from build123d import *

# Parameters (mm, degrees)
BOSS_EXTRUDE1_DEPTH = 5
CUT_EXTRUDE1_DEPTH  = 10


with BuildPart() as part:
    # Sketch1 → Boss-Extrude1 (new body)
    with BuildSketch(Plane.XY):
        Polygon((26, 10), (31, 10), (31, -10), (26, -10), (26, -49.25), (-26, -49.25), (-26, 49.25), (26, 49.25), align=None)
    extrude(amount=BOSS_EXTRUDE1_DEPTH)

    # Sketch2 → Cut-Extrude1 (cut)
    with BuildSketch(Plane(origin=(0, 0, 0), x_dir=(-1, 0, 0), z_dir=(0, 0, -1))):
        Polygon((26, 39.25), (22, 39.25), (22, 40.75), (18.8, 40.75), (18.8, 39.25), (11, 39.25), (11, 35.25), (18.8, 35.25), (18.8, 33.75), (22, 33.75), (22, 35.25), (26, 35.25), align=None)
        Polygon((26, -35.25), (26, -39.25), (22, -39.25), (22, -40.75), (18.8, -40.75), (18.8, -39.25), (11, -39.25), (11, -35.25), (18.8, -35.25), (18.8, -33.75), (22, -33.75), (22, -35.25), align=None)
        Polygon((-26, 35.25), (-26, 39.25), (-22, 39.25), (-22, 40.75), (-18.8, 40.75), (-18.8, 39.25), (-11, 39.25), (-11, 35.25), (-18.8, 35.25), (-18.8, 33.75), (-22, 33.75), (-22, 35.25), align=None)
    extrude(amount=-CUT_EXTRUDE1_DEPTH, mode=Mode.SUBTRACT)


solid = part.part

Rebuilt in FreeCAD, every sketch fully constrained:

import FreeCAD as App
import Part
import Sketcher
from FreeCAD import Vector
Q = App.Units.Quantity


def add_polygon(sketch, points):
    """Adds a closed chain of lines whose ends are joined by coincident constraints."""
    first, n = sketch.GeometryCount, len(points)
    for a, b in zip(points, points[1:] + points[:1]):
        sketch.addGeometry(Part.LineSegment(App.Vector(*a, 0), App.Vector(*b, 0)), False)
    for i in range(n):
        sketch.addConstraint(Sketcher.Constraint("Coincident", first + i, 2, first + (i + 1) % n, 1))

doc = App.newDocument("Part")
body = doc.addObject("PartDesign::Body", "Body")

# Sketch on XY plane
sketch1 = body.newObject("Sketcher::SketchObject", "Sketch")
sketch1.AttachmentSupport = (doc.getObject("XY_Plane"), [""])
sketch1.MapMode = "FlatFace"
add_polygon(sketch1, [(31, 10), (26, 10), (26, 49.25), (-26, 49.25), (-26, -49.25), (26, -49.25), (26, -10), (31, -10)])  # lines 0-7
sketch1.addConstraint([
    Sketcher.Constraint("Horizontal", 0),
    Sketcher.Constraint("Vertical", 1),
    Sketcher.Constraint("Horizontal", 2),
    Sketcher.Constraint("Vertical", 3),
    Sketcher.Constraint("Horizontal", 4),
    Sketcher.Constraint("Vertical", 5),
    Sketcher.Constraint("Horizontal", 6),
    Sketcher.Constraint("Vertical", 7),
    Sketcher.Constraint("Symmetric", 1, 2, 3, 2, -1, 1),
    Sketcher.Constraint("Symmetric", 0, 2, 5, 2, -1),
    Sketcher.Constraint("DistanceX", 0, 2, 0, 1, Q("5 mm")),
    Sketcher.Constraint("DistanceX", 2, 2, 2, 1, Q("52 mm")),
    Sketcher.Constraint("DistanceY", 7, 1, 7, 2, Q("20 mm")),
    Sketcher.Constraint("DistanceY", 3, 2, 3, 1, Q("98.5 mm")),
])
pad1 = body.newObject("PartDesign::Pad", "Pad")
pad1.Profile = sketch1
pad1.Length = 5

# Sketch on XY plane
sketch2 = body.newObject("Sketcher::SketchObject", "Sketch001")
sketch2.AttachmentSupport = (doc.getObject("XY_Plane"), [""])
sketch2.MapMode = "FlatFace"
add_polygon(sketch2, [(-26, 39.25), (-22, 39.25), (-22, 40.75), (-18.8, 40.75), (-18.8, 39.25), (-11, 39.25), (-11, 35.25), (-18.8, 35.25), (-18.8, 33.75), (-22, 33.75), (-22, 35.25), (-26, 35.25)])  # lines 0-11
add_polygon(sketch2, [(-26, -39.25), (-26, -35.25), (-22, -35.25), (-22, -33.75), (-18.8, -33.75), (-18.8, -35.25), (-11, -35.25), (-11, -39.25), (-18.8, -39.25), (-18.8, -40.75), (-22, -40.75), (-22, -39.25)])  # lines 12-23
add_polygon(sketch2, [(26, 39.25), (26, 35.25), (22, 35.25), (22, 33.75), (18.8, 33.75), (18.8, 35.25), (11, 35.25), (11, 39.25), (18.8, 39.25), (18.8, 40.75), (22, 40.75), (22, 39.25)])  # lines 24-35
sketch2.addConstraint([
    Sketcher.Constraint("Horizontal", 0),
    Sketcher.Constraint("Vertical", 1),
    Sketcher.Constraint("Horizontal", 2),
    Sketcher.Constraint("Vertical", 3),
    Sketcher.Constraint("Horizontal", 4),
    Sketcher.Constraint("Vertical", 5),
    Sketcher.Constraint("Horizontal", 6),
    Sketcher.Constraint("Vertical", 7),
    Sketcher.Constraint("Horizontal", 8),
    Sketcher.Constraint("Vertical", 9),
    Sketcher.Constraint("Horizontal", 10),
    Sketcher.Constraint("Vertical", 11),
    Sketcher.Constraint("Vertical", 12),
    Sketcher.Constraint("Horizontal", 13),
    Sketcher.Constraint("Vertical", 14),
    Sketcher.Constraint("Horizontal", 15),
    Sketcher.Constraint("Vertical", 16),
    Sketcher.Constraint("Horizontal", 17),
    Sketcher.Constraint("Vertical", 18),
    Sketcher.Constraint("Horizontal", 19),
    Sketcher.Constraint("Vertical", 20),
    Sketcher.Constraint("Horizontal", 21),
    Sketcher.Constraint("Vertical", 22),
    Sketcher.Constraint("Horizontal", 23),
    Sketcher.Constraint("Vertical", 24),
    Sketcher.Constraint("Horizontal", 25),
    Sketcher.Constraint("Vertical", 26),
    Sketcher.Constraint("Horizontal", 27),
    Sketcher.Constraint("Vertical", 28),
    Sketcher.Constraint("Horizontal", 29),
    Sketcher.Constraint("Vertical", 30),
    Sketcher.Constraint("Horizontal", 31),
    Sketcher.Constraint("Vertical", 32),
    Sketcher.Constraint("Horizontal", 33),
    Sketcher.Constraint("Vertical", 34),
    Sketcher.Constraint("Horizontal", 35),
    Sketcher.Constraint("Symmetric", 12, 2, 24, 2, -1, 1),
    Sketcher.Constraint("Symmetric", 14, 2, 26, 2, -1, 1),
    Sketcher.Constraint("Symmetric", 16, 2, 28, 2, -1, 1),
    Sketcher.Constraint("Symmetric", 18, 2, 30, 2, -1, 1),
    Sketcher.Constraint("Symmetric", 20, 2, 32, 2, -1, 1),
    Sketcher.Constraint("Symmetric", 22, 2, 34, 2, -1, 1),
    Sketcher.Constraint("Symmetric", 10, 2, 24, 2, -2),
    Sketcher.Constraint("Symmetric", 8, 2, 26, 2, -2),
    Sketcher.Constraint("Symmetric", 6, 2, 28, 2, -2),
    Sketcher.Constraint("Symmetric", 4, 2, 30, 2, -2),
    Sketcher.Constraint("Symmetric", 2, 2, 32, 2, -2),
    Sketcher.Constraint("Symmetric", 0, 2, 34, 2, -2),
    Sketcher.Constraint("Horizontal", 0, 2, 3, 2),
    Sketcher.Constraint("Horizontal", 6, 2, 9, 2),
    Sketcher.Constraint("Vertical", 3, 2, 6, 2),
    Sketcher.Constraint("Vertical", 1, 2, 8, 2),
    Sketcher.Constraint("Equal", 35, 5),
    Sketcher.Constraint("Equal", 3, 7),
    Sketcher.Constraint("DistanceX", 0, 1, 0, 2, Q("4 mm")),
    Sketcher.Constraint("DistanceX", 2, 1, 2, 2, Q("3.2 mm")),
    Sketcher.Constraint("DistanceX", 4, 1, 4, 2, Q("7.8 mm")),
    Sketcher.Constraint("DistanceY", 1, 1, 1, 2, Q("1.5 mm")),
    Sketcher.Constraint("DistanceX", 0, 2, -1, 1, Q("22 mm")),
    Sketcher.Constraint("DistanceY", 12, 2, 8, 2, Q("69 mm")),
])
pocket1 = body.newObject("PartDesign::Pocket", "Pocket")
pocket1.Profile = sketch2
pocket1.Length = 10
pocket1.Reversed = True

doc.recompute()
